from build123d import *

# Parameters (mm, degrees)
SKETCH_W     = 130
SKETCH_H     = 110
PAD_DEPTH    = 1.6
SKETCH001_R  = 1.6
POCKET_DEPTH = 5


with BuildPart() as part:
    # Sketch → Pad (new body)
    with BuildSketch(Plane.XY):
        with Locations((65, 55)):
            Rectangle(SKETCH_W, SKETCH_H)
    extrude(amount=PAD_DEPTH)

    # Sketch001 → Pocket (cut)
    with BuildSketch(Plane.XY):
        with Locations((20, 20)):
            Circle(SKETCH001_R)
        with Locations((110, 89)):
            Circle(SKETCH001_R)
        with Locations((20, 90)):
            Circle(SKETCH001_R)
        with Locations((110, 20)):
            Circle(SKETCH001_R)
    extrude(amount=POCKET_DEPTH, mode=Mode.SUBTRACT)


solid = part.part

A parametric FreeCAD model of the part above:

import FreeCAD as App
import Part
import Sketcher


def add_polygon(sketch, points):
    """Adds a closed chain of lines whose ends are joined by coincident constraints."""
    first, n = sketch.GeometryCount, len(points)
    for a, b in zip(points, points[1:] + points[:1]):
        sketch.addGeometry(Part.LineSegment(App.Vector(*a, 0), App.Vector(*b, 0)), False)
    for i in range(n):
        sketch.addConstraint(Sketcher.Constraint("Coincident", first + i, 2, first + (i + 1) % n, 1))

doc = App.newDocument("Part")
body = doc.addObject("PartDesign::Body", "Body")

# Sketch on XY plane
sketch1 = doc.addObject("Sketcher::SketchObject", "Sketch")
body.addObject(sketch1)
sketch1.AttachmentSupport = (doc.XY_Plane, [""])
sketch1.MapMode = "FlatFace"
add_polygon(sketch1, [(0, 110), (0, 0), (130, 0), (130, 110)])  # lines 0-3
sketch1.addConstraint([
    Sketcher.Constraint("Vertical", 0),
    Sketcher.Constraint("Horizontal", 1),
    Sketcher.Constraint("Vertical", 2),
    Sketcher.Constraint("Horizontal", 3),
    Sketcher.Constraint("Coincident", 0, 2, -1, 1),
    Sketcher.Constraint("DistanceX", 1, 1, 1, 2, 130.0),
    Sketcher.Constraint("DistanceY", 0, 2, 0, 1, 110.0),
])
pad1 = doc.addObject("PartDesign::Pad", "Pad")
body.addObject(pad1)
pad1.Profile = sketch1
pad1.Length = 1.6

# Sketch on XY plane
sketch2 = doc.addObject("Sketcher::SketchObject", "Sketch001")
body.addObject(sketch2)
sketch2.AttachmentSupport = (doc.XY_Plane, [""])
sketch2.MapMode = "FlatFace"
sketch2.addGeometry([
    Part.Circle(App.Vector(20, 20, 0), App.Vector(0, 0, 1), 1.6),
    Part.Circle(App.Vector(110, 89, 0), App.Vector(0, 0, 1), 1.6),
    Part.Circle(App.Vector(20, 90, 0), App.Vector(0, 0, 1), 1.6),
    Part.Circle(App.Vector(110, 20, 0), App.Vector(0, 0, 1), 1.6),
], False)
sketch2.addConstraint([
    Sketcher.Constraint("Equal", 0, 1),
    Sketcher.Constraint("Equal", 1, 2),
    Sketcher.Constraint("Equal", 2, 3),
    Sketcher.Constraint("Horizontal", 0, 3, 3, 3),
    Sketcher.Constraint("Vertical", 0, 3, 2, 3),
    Sketcher.Constraint("Vertical", 1, 3, 3, 3),
    Sketcher.Constraint("Diameter", 0, 3.2),
    Sketcher.Constraint("DistanceX", -1, 1, 0, 3, 20.0),
    Sketcher.Constraint("DistanceY", -1, 1, 0, 3, 20.0),
    Sketcher.Constraint("DistanceX", -1, 1, 1, 3, 110.0),
    Sketcher.Constraint("DistanceY", -1, 1, 1, 3, 89.0),
    Sketcher.Constraint("DistanceY", -1, 1, 2, 3, 90.0),
])
pocket1 = doc.addObject("PartDesign::Pocket", "Pocket")
body.addObject(pocket1)
pocket1.Profile = sketch2
pocket1.Length = 5
pocket1.Reversed = True

doc.recompute()
